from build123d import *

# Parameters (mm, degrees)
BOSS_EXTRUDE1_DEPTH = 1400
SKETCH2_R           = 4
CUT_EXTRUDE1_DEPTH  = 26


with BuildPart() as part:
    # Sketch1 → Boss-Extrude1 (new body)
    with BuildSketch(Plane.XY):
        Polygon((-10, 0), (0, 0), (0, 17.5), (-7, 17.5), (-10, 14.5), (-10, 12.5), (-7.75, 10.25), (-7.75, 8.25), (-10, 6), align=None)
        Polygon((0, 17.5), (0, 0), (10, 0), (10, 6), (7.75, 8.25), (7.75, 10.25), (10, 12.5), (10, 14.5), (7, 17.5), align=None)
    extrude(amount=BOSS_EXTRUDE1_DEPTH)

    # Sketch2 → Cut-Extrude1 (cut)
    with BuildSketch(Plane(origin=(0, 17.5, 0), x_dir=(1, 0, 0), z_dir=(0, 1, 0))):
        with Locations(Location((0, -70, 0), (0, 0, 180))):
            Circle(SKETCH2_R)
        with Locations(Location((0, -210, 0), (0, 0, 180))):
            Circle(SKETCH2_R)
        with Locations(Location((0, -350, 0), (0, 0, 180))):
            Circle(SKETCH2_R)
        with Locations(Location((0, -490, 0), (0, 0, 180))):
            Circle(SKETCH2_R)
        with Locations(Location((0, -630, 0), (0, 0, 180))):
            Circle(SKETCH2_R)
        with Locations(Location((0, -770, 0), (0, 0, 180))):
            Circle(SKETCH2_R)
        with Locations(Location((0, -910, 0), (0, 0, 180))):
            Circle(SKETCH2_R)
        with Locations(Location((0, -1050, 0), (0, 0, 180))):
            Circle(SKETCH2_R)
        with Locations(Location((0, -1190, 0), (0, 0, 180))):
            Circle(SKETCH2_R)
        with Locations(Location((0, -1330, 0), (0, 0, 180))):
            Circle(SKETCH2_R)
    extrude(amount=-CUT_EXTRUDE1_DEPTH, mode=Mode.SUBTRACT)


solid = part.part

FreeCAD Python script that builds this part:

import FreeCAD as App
import Part
import Sketcher
from FreeCAD import Vector
Q = App.Units.Quantity

doc = App.newDocument("Part")
body = doc.addObject("PartDesign::Body", "Body")

# Sketch on XY plane
sketch1 = doc.addObject("Sketcher::SketchObject", "Sketch")
body.addObject(sketch1)
sketch1.AttachmentSupport = (doc.XY_Plane, [""])
sketch1.MapMode = "FlatFace"
sketch1.addGeometry([
    Part.LineSegment(Vector(-10, 0, 0), Vector(10, 0, 0)),  # 0
    Part.LineSegment(Vector(10, 0, 0), Vector(10, 6, 0)),  # 1
    Part.LineSegment(Vector(10, 6, 0), Vector(7.75, 8.25, 0)),  # 2
    Part.LineSegment(Vector(7.75, 8.25, 0), Vector(7.75, 10.25, 0)),  # 3
    Part.LineSegment(Vector(7.75, 10.25, 0), Vector(10, 12.5, 0)),  # 4
    Part.LineSegment(Vector(10, 12.5, 0), Vector(10, 14.5, 0)),  # 5
    Part.LineSegment(Vector(10, 14.5, 0), Vector(7, 17.5, 0)),  # 6
    Part.LineSegment(Vector(7, 17.5, 0), Vector(-7, 17.5, 0)),  # 7
    Part.LineSegment(Vector(-7, 17.5, 0), Vector(-10, 14.5, 0)),  # 8
    Part.LineSegment(Vector(-10, 14.5, 0), Vector(-10, 12.5, 0)),  # 9
    Part.LineSegment(Vector(-10, 12.5, 0), Vector(-7.75, 10.25, 0)),  # 10
    Part.LineSegment(Vector(-7.75, 10.25, 0), Vector(-7.75, 8.25, 0)),  # 11
    Part.LineSegment(Vector(-7.75, 8.25, 0), Vector(-10, 6, 0)),  # 12
    Part.LineSegment(Vector(-10, 6, 0), Vector(-10, 0, 0)),  # 13
], False)
sketch1.addConstraint([
    Sketcher.Constraint("Coincident", 0, 2, 1, 1),
    Sketcher.Constraint("Coincident", 1, 2, 2, 1),
    Sketcher.Constraint("Coincident", 2, 2, 3, 1),
    Sketcher.Constraint("Coincident", 3, 2, 4, 1),
    Sketcher.Constraint("Coincident", 4, 2, 5, 1),
    Sketcher.Constraint("Coincident", 5, 2, 6, 1),
    Sketcher.Constraint("Coincident", 6, 2, 7, 1),
    Sketcher.Constraint("Coincident", 7, 2, 8, 1),
    Sketcher.Constraint("Coincident", 8, 2, 9, 1),
    Sketcher.Constraint("Coincident", 9, 2, 10, 1),
    Sketcher.Constraint("Coincident", 10, 2, 11, 1),
    Sketcher.Constraint("Coincident", 11, 2, 12, 1),
    Sketcher.Constraint("Coincident", 12, 2, 13, 1),
    Sketcher.Constraint("Coincident", 13, 2, 0, 1),
    Sketcher.Constraint("Horizontal", 0),
    Sketcher.Constraint("Vertical", 1),
    Sketcher.Constraint("Vertical", 3),
    Sketcher.Constraint("Vertical", 5),
    Sketcher.Constraint("Horizontal", 7),
    Sketcher.Constraint("Vertical", 9),
    Sketcher.Constraint("Vertical", 11),
    Sketcher.Constraint("Vertical", 13),
    Sketcher.Constraint("Symmetric", 0, 2, 13, 2, -1, 1),
    Sketcher.Constraint("Symmetric", 5, 2, 8, 2, -2),
    Sketcher.Constraint("Symmetric", 3, 2, 10, 2, -2),
    Sketcher.Constraint("Perpendicular", 2, 4),
    Sketcher.Constraint("Perpendicular", 4, 6),
    Sketcher.Constraint("Perpendicular", 6, 8),
    Sketcher.Constraint("Perpendicular", 8, 10),
    Sketcher.Constraint("Perpendicular", 10, 12),
    Sketcher.Constraint("Horizontal", 4, 2, 9, 2),
    Sketcher.Constraint("Horizontal", 2, 2, 11, 2),
    Sketcher.Constraint("Vertical", 1, 2, 4, 2),
    Sketcher.Constraint("Equal", 3, 5),
    Sketcher.Constraint("DistanceX", 0, 1, 0, 2, Q("20 mm")),
    Sketcher.Constraint("DistanceX", 7, 2, 7, 1, Q("14 mm")),
    Sketcher.Constraint("DistanceY", 1, 1, 1, 2, Q("6 mm")),
    Sketcher.Constraint("DistanceY", 3, 1, 3, 2, Q("2 mm")),
    Sketcher.Constraint("DistanceY", -1, 1, 4, 2, Q("12.5 mm")),
])
pad1 = doc.addObject("PartDesign::Pad", "Pad")
body.addObject(pad1)
pad1.Profile = sketch1
pad1.Length = 1400

# Sketch on XZ plane
sketch2 = doc.addObject("Sketcher::SketchObject", "Sketch001")
body.addObject(sketch2)
sketch2.AttachmentSupport = (doc.XZ_Plane, [""])
sketch2.MapMode = "FlatFace"
sketch2.AttachmentOffset = App.Placement(Vector(0, 0, -17.5), App.Rotation())
sketch2.addGeometry([
    Part.Circle(Vector(0, 70, 0), Vector(0, 0, 1), 4),  # 0
    Part.Circle(Vector(0, 210, 0), Vector(0, 0, 1), 4),  # 1
    Part.Circle(Vector(0, 350, 0), Vector(0, 0, 1), 4),  # 2
    Part.Circle(Vector(0, 490, 0), Vector(0, 0, 1), 4),  # 3
    Part.Circle(Vector(0, 630, 0), Vector(0, 0, 1), 4),  # 4
    Part.Circle(Vector(0, 770, 0), Vector(0, 0, 1), 4),  # 5
    Part.Circle(Vector(0, 910, 0), Vector(0, 0, 1), 4),  # 6
    Part.Circle(Vector(0, 1050, 0), Vector(0, 0, 1), 4),  # 7
    Part.Circle(Vector(0, 1190, 0), Vector(0, 0, 1), 4),  # 8
    Part.Circle(Vector(0, 1330, 0), Vector(0, 0, 1), 4),  # 9
], False)
sketch2.addConstraint([
    Sketcher.Constraint("Equal", 0, 1),
    Sketcher.Constraint("Equal", 1, 2),
    Sketcher.Constraint("Equal", 2, 3),
    Sketcher.Constraint("Equal", 3, 4),
    Sketcher.Constraint("Equal", 4, 5),
    Sketcher.Constraint("Equal", 5, 6),
    Sketcher.Constraint("Equal", 6, 7),
    Sketcher.Constraint("Equal", 7, 8),
    Sketcher.Constraint("Equal", 8, 9),
    Sketcher.Constraint("PointOnObject", 0, 3, -2),
    Sketcher.Constraint("PointOnObject", 1, 3, -2),
    Sketcher.Constraint("PointOnObject", 2, 3, -2),
    Sketcher.Constraint("PointOnObject", 3, 3, -2),
    Sketcher.Constraint("PointOnObject", 4, 3, -2),
    Sketcher.Constraint("PointOnObject", 5, 3, -2),
    Sketcher.Constraint("PointOnObject", 6, 3, -2),
    Sketcher.Constraint("PointOnObject", 7, 3, -2),
    Sketcher.Constraint("PointOnObject", 8, 3, -2),
    Sketcher.Constraint("PointOnObject", 9, 3, -2),
    Sketcher.Constraint("Diameter", 0, Q("8 mm")),
    Sketcher.Constraint("DistanceY", -1, 1, 0, 3, Q("70 mm")),
    Sketcher.Constraint("DistanceY", -1, 1, 1, 3, Q("210 mm")),
    Sketcher.Constraint("DistanceY", -1, 1, 2, 3, Q("350 mm")),
    Sketcher.Constraint("DistanceY", -1, 1, 3, 3, Q("490 mm")),
    Sketcher.Constraint("DistanceY", -1, 1, 4, 3, Q("630 mm")),
    Sketcher.Constraint("DistanceY", -1, 1, 5, 3, Q("770 mm")),
    Sketcher.Constraint("DistanceY", -1, 1, 6, 3, Q("910 mm")),
    Sketcher.Constraint("DistanceY", -1, 1, 7, 3, Q("1050 mm")),
    Sketcher.Constraint("DistanceY", -1, 1, 8, 3, Q("1190 mm")),
    Sketcher.Constraint("DistanceY", -1, 1, 9, 3, Q("1330 mm")),
])
pocket1 = doc.addObject("PartDesign::Pocket", "Pocket")
body.addObject(pocket1)
pocket1.Profile = sketch2
pocket1.Length = 26
pocket1.Reversed = True

doc.recompute()
